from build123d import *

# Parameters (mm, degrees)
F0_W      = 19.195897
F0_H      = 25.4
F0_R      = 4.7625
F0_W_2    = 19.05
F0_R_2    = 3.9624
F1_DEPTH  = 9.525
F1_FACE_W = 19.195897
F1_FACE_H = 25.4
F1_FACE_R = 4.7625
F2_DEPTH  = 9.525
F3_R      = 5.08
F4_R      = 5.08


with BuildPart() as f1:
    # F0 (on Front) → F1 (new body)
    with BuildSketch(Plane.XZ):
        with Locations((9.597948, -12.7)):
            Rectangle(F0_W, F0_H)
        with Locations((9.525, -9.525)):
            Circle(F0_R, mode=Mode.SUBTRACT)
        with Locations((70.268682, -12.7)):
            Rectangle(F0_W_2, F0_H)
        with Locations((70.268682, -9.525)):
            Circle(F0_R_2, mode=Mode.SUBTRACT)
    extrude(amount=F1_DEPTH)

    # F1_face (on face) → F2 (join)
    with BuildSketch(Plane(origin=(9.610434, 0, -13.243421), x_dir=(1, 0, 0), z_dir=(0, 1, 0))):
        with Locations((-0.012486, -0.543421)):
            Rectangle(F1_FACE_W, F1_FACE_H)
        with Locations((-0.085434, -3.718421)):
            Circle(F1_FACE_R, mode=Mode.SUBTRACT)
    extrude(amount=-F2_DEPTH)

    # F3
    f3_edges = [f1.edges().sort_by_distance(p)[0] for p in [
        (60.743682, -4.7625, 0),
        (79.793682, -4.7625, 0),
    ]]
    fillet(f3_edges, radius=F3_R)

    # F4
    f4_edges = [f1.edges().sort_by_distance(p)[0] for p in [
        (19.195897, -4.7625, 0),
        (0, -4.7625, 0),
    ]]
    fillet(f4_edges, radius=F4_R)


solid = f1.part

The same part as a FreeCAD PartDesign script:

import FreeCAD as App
import Part
import Sketcher
Q = App.Units.Quantity


def edges_at(feature, points):
    """Names of the edges that pass closest to the given points."""
    edges = feature.Shape.Edges
    near = lambda p: min(range(len(edges)), key=lambda i: edges[i].distToShape(Part.Vertex(*p))[0])
    return sorted({f"Edge{near(p) + 1}" for p in points})

doc = App.newDocument("Part")
params = doc.addObject("Spreadsheet::Sheet", "Params")
for row, (alias, value) in enumerate([
    ("sketch1_height", "1 in"),
    ("sketch1_diameter", "0.375 in"),
    ("sketch1_diameter2", "0.312 in"),
    ("sketch1_width", "0.75 in"),
    ("pad1_length", "0.375 in"),
    ("sketch2_height", "1 in"),
    ("sketch2_diameter", "0.375 in"),
    ("pad2_length", "0.375 in"),
    ("fillet_radius", "0.2 in"),
    ("fillet2_radius", "0.2 in"),
], start=1):
    params.set(f"A{row}", alias)
    params.set(f"B{row}", "=" + value)
    params.setAlias(f"B{row}", alias)

body = doc.addObject("PartDesign::Body", "Body")
body.AllowCompound = True

# Sketch on XZ plane
sketch1 = body.newObject("Sketcher::SketchObject", "Sketch")
sketch1.AttachmentSupport = (doc.getObject("XZ_Plane"), [""])
sketch1.MapMode = "FlatFace"
sketch1.addGeometry(Part.LineSegment(App.Vector(0, 0, 0), App.Vector(0, -25.4, 0)), False)
sketch1.addGeometry(Part.LineSegment(App.Vector(0, -25.4, 0), App.Vector(19.2, -25.4, 0)), False)
sketch1.addGeometry(Part.LineSegment(App.Vector(19.2, -25.4, 0), App.Vector(19.2, 0, 0)), False)
sketch1.addGeometry(Part.LineSegment(App.Vector(19.2, 0, 0), App.Vector(0, 0, 0)), False)
sketch1.addGeometry(Part.Circle(App.Vector(9.5, -9.5, 0), App.Vector(0, 0, 1), 4.8), False)
sketch1.addGeometry(Part.LineSegment(App.Vector(60.7, 0, 0), App.Vector(60.7, -25.4, 0)), False)
sketch1.addGeometry(Part.LineSegment(App.Vector(60.7, -25.4, 0), App.Vector(79.8, -25.4, 0)), False)
sketch1.addGeometry(Part.LineSegment(App.Vector(79.8, -25.4, 0), App.Vector(79.8, 0, 0)), False)
sketch1.addGeometry(Part.LineSegment(App.Vector(79.8, 0, 0), App.Vector(60.7, 0, 0)), False)
sketch1.addGeometry(Part.Circle(App.Vector(70.3, -9.5, 0), App.Vector(0, 0, 1), 4), False)
sketch1.addConstraint(Sketcher.Constraint("Coincident", 0, 2, 1, 1))
sketch1.addConstraint(Sketcher.Constraint("Coincident", 1, 2, 2, 1))
sketch1.addConstraint(Sketcher.Constraint("Coincident", 2, 2, 3, 1))
sketch1.addConstraint(Sketcher.Constraint("Coincident", 3, 2, 0, 1))
sketch1.addConstraint(Sketcher.Constraint("Coincident", 5, 2, 6, 1))
sketch1.addConstraint(Sketcher.Constraint("Coincident", 6, 2, 7, 1))
sketch1.addConstraint(Sketcher.Constraint("Coincident", 7, 2, 8, 1))
sketch1.addConstraint(Sketcher.Constraint("Coincident", 8, 2, 5, 1))
sketch1.addConstraint(Sketcher.Constraint("Vertical", 0))
sketch1.addConstraint(Sketcher.Constraint("Horizontal", 1))
sketch1.addConstraint(Sketcher.Constraint("Vertical", 2))
sketch1.addConstraint(Sketcher.Constraint("Horizontal", 3))
sketch1.addConstraint(Sketcher.Constraint("Vertical", 5))
sketch1.addConstraint(Sketcher.Constraint("Horizontal", 6))
sketch1.addConstraint(Sketcher.Constraint("Vertical", 7))
sketch1.addConstraint(Sketcher.Constraint("Horizontal", 8))
sketch1.addConstraint(Sketcher.Constraint("Coincident", 3, 2, -1, 1))
sketch1.addConstraint(Sketcher.Constraint("PointOnObject", 7, 2, -1))
sketch1.addConstraint(Sketcher.Constraint("Horizontal", 4, 3, 9, 3))
sketch1.addConstraint(Sketcher.Constraint("Horizontal", 1, 2, 5, 2))
sketch1.addConstraint(Sketcher.Constraint("DistanceY", 0, 2, 0, 1, Q("1 in")))
sketch1.addConstraint(Sketcher.Constraint("Diameter", 4, Q("0.375 in")))
sketch1.addConstraint(Sketcher.Constraint("Diameter", 9, Q("0.312 in")))
sketch1.addConstraint(Sketcher.Constraint("DistanceX", 6, 1, 6, 2, Q("0.75 in")))
sketch1.addConstraint(Sketcher.Constraint("DistanceX", -1, 1, 4, 3, Q("0.375 in")))
sketch1.addConstraint(Sketcher.Constraint("DistanceY", 4, 3, -1, 1, Q("0.375 in")))
sketch1.addConstraint(Sketcher.Constraint("DistanceX", 5, 2, 9, 3, Q("0.375 in")))
sketch1.addConstraint(Sketcher.Constraint("DistanceX", 1, 1, 1, 2, 19.195897))
sketch1.addConstraint(Sketcher.Constraint("DistanceX", -1, 1, 9, 3, 70.268682))
sketch1.setExpression("Constraints[20]", "Params.sketch1_height")
sketch1.setExpression("Constraints[21]", "Params.sketch1_diameter")
sketch1.setExpression("Constraints[22]", "Params.sketch1_diameter2")
sketch1.setExpression("Constraints[23]", "Params.sketch1_width")
pad1 = body.newObject("PartDesign::Pad", "Pad")
pad1.Profile = sketch1
pad1.setExpression("Length", "Params.pad1_length")

# Sketch on XZ plane
sketch2 = body.newObject("Sketcher::SketchObject", "Sketch001")
sketch2.AttachmentSupport = (doc.getObject("XZ_Plane"), [""])
sketch2.MapMode = "FlatFace"
sketch2.addGeometry(Part.LineSegment(App.Vector(0, -25.4, 0), App.Vector(0, 0, 0)), False)
sketch2.addGeometry(Part.LineSegment(App.Vector(0, 0, 0), App.Vector(19.2, 0, 0)), False)
sketch2.addGeometry(Part.LineSegment(App.Vector(19.2, 0, 0), App.Vector(19.2, -25.4, 0)), False)
sketch2.addGeometry(Part.LineSegment(App.Vector(19.2, -25.4, 0), App.Vector(0, -25.4, 0)), False)
sketch2.addGeometry(Part.Circle(App.Vector(9.5, -9.5, 0), App.Vector(0, 0, 1), 4.8), False)
sketch2.addConstraint(Sketcher.Constraint("Coincident", 0, 2, 1, 1))
sketch2.addConstraint(Sketcher.Constraint("Coincident", 1, 2, 2, 1))
sketch2.addConstraint(Sketcher.Constraint("Coincident", 2, 2, 3, 1))
sketch2.addConstraint(Sketcher.Constraint("Coincident", 3, 2, 0, 1))
sketch2.addConstraint(Sketcher.Constraint("Vertical", 0))
sketch2.addConstraint(Sketcher.Constraint("Horizontal", 1))
sketch2.addConstraint(Sketcher.Constraint("Vertical", 2))
sketch2.addConstraint(Sketcher.Constraint("Horizontal", 3))
sketch2.addConstraint(Sketcher.Constraint("Coincident", 0, 2, -1, 1))
sketch2.addConstraint(Sketcher.Constraint("DistanceY", 0, 1, 0, 2, Q("1 in")))
sketch2.addConstraint(Sketcher.Constraint("Diameter", 4, Q("0.375 in")))
sketch2.addConstraint(Sketcher.Constraint("DistanceX", -1, 1, 4, 3, Q("0.375 in")))
sketch2.addConstraint(Sketcher.Constraint("DistanceY", 4, 3, -1, 1, Q("0.375 in")))
sketch2.addConstraint(Sketcher.Constraint("DistanceX", 1, 1, 1, 2, 19.195897))
sketch2.setExpression("Constraints[9]", "Params.sketch2_height")
sketch2.setExpression("Constraints[10]", "Params.sketch2_diameter")
pad2 = body.newObject("PartDesign::Pad", "Pad001")
pad2.Profile = sketch2
pad2.setExpression("Length", "Params.pad2_length")
doc.recompute()

fillet = body.newObject("PartDesign::Fillet", "Fillet")
fillet.Base = (pad2, edges_at(pad2, [(60.744, -4.763, 0), (79.794, -4.763, 0)]))
fillet.setExpression("Radius", "Params.fillet_radius")
doc.recompute()

fillet2 = body.newObject("PartDesign::Fillet", "Fillet001")
fillet2.Base = (fillet, edges_at(fillet, [(19.196, -4.763, 0), (0, -4.763, 0)]))
fillet2.setExpression("Radius", "Params.fillet2_radius")

doc.recompute()
